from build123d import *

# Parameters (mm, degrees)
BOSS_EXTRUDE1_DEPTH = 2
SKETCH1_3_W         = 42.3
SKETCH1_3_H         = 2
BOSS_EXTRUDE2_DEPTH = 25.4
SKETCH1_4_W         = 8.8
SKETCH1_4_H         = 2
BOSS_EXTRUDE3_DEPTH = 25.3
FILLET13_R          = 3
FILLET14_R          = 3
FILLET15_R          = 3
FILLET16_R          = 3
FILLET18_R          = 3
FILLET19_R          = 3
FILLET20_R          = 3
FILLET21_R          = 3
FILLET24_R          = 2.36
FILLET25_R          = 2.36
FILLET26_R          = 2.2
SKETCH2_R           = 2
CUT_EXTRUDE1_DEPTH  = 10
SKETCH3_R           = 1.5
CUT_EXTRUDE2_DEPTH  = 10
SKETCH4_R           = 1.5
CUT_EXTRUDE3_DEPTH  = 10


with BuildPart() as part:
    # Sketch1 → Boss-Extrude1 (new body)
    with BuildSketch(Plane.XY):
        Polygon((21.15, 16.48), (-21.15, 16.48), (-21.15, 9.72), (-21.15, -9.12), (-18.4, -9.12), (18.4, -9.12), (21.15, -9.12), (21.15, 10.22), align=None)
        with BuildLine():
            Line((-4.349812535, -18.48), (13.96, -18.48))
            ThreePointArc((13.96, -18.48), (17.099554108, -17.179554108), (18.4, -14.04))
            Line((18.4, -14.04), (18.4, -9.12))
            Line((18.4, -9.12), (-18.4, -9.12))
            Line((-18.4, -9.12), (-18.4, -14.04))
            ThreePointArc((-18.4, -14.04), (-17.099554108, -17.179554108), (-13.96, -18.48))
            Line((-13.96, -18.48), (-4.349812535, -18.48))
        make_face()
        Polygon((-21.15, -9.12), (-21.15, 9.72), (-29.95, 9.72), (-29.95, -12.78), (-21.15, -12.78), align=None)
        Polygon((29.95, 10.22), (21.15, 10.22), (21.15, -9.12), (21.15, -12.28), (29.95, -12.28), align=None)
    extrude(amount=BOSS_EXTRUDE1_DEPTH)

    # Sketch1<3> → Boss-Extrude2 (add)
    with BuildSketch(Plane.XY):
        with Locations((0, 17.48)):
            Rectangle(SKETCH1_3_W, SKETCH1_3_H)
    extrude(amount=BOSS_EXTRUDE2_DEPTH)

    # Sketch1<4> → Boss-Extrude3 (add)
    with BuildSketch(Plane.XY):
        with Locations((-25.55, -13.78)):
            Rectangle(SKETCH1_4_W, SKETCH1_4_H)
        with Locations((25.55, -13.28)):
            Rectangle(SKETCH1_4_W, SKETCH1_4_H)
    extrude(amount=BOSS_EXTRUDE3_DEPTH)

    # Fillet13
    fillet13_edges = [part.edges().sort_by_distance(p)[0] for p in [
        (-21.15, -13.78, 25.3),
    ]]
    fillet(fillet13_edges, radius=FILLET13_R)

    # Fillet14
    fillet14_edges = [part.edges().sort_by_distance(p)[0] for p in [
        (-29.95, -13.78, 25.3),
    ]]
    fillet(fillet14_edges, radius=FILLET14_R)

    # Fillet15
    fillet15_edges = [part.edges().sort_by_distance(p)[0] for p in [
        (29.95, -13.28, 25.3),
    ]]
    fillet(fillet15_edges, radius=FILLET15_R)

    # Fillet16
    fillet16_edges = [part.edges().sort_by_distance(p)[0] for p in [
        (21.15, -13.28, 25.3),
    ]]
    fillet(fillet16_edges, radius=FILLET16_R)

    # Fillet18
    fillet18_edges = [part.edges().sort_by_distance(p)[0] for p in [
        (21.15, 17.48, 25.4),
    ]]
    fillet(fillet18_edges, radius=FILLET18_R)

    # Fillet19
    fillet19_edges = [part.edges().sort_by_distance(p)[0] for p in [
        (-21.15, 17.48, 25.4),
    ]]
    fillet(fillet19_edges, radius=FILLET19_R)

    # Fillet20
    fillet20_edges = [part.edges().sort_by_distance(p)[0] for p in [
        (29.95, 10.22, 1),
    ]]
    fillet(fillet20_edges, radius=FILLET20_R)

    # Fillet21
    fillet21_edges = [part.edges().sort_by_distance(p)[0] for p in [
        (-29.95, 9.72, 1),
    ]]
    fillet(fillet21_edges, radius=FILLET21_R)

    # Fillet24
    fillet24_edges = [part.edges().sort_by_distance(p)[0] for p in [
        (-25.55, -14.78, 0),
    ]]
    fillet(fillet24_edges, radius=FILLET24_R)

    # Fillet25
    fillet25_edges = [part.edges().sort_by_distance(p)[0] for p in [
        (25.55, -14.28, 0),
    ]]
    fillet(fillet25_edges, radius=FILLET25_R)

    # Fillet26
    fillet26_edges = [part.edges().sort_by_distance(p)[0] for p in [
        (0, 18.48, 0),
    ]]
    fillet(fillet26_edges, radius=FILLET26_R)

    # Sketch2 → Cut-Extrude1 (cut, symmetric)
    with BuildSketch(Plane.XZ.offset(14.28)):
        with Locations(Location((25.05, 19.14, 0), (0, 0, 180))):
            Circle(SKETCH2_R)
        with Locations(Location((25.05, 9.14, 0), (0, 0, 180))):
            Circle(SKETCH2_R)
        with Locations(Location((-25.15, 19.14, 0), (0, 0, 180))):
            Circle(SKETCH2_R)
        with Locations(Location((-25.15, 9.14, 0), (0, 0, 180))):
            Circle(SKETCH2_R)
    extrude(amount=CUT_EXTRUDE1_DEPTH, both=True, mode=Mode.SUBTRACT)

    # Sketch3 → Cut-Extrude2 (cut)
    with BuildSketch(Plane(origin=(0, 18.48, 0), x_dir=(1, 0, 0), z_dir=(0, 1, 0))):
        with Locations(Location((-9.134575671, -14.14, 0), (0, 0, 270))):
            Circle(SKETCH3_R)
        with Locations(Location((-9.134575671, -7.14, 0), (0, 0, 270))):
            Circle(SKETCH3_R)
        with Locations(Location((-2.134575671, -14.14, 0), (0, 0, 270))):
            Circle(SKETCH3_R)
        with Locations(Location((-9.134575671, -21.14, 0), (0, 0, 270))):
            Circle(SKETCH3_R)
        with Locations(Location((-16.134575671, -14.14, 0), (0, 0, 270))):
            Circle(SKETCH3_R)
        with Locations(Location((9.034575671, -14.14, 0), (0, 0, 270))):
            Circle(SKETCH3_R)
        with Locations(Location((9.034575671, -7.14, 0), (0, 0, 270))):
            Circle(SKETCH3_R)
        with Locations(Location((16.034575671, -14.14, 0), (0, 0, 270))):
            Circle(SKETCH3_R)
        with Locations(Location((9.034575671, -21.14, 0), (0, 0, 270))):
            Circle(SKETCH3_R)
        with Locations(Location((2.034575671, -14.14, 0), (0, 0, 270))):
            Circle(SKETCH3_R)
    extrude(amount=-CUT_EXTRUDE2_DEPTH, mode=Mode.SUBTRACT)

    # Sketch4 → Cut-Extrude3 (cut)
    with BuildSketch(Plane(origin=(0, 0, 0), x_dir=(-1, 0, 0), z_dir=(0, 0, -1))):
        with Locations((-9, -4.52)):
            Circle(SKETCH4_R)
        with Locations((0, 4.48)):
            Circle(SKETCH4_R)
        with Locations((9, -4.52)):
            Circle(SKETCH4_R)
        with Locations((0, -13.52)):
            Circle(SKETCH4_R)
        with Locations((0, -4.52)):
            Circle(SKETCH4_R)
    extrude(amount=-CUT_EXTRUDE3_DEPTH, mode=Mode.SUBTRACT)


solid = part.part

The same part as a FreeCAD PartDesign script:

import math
import FreeCAD as App
import Part
import Sketcher

V = App.Vector
Q = App.Units.Quantity


def edges_at(feature, points):
    """Names of the edges that pass closest to the given points."""
    edges = feature.Shape.Edges
    near = lambda p: min(range(len(edges)), key=lambda i: edges[i].distToShape(Part.Vertex(*p))[0])
    return sorted({f"Edge{near(p) + 1}" for p in points})

doc = App.newDocument("Part")
body = doc.addObject("PartDesign::Body", "Body")

# Sketch on XY plane
sketch1 = body.newObject("Sketcher::SketchObject", "Sketch")
sketch1.AttachmentSupport = (doc.getObject("XY_Plane"), [""])
sketch1.MapMode = "FlatFace"
sketch1.addGeometry(Part.LineSegment(V(21.15, 16.48, 0), V(-21.15, 16.48, 0)), False)
sketch1.addGeometry(Part.LineSegment(V(-21.15, 16.48, 0), V(-21.15, 9.72, 0)), False)
sketch1.addGeometry(Part.LineSegment(V(-21.15, 9.72, 0), V(-29.95, 9.72, 0)), False)
sketch1.addGeometry(Part.LineSegment(V(-29.95, 9.72, 0), V(-29.95, -12.78, 0)), False)
sketch1.addGeometry(Part.LineSegment(V(-29.95, -12.78, 0), V(-21.15, -12.78, 0)), False)
sketch1.addGeometry(Part.LineSegment(V(-21.15, -12.78, 0), V(-21.15, -9.12, 0)), False)
sketch1.addGeometry(Part.LineSegment(V(-21.15, -9.12, 0), V(-18.4, -9.12, 0)), False)
sketch1.addGeometry(Part.LineSegment(V(-18.4, -9.12, 0), V(-18.4, -14.04, 0)), False)
sketch1.addGeometry(Part.ArcOfCircle(Part.Circle(V(-13.96, -14.04, 0), V(0, 0, 1), 4.44), math.radians(-180), math.radians(-90)), False)
sketch1.addGeometry(Part.LineSegment(V(-13.96, -18.48, 0), V(13.96, -18.48, 0)), False)
sketch1.addGeometry(Part.ArcOfCircle(Part.Circle(V(13.96, -14.04, 0), V(0, 0, 1), 4.44), math.radians(-90), math.radians(0)), False)
sketch1.addGeometry(Part.LineSegment(V(18.4, -14.04, 0), V(18.4, -9.12, 0)), False)
sketch1.addGeometry(Part.LineSegment(V(18.4, -9.12, 0), V(21.15, -9.12, 0)), False)
sketch1.addGeometry(Part.LineSegment(V(21.15, -9.12, 0), V(21.15, -12.28, 0)), False)
sketch1.addGeometry(Part.LineSegment(V(21.15, -12.28, 0), V(29.95, -12.28, 0)), False)
sketch1.addGeometry(Part.LineSegment(V(29.95, -12.28, 0), V(29.95, 10.22, 0)), False)
sketch1.addGeometry(Part.LineSegment(V(29.95, 10.22, 0), V(21.15, 10.22, 0)), False)
sketch1.addGeometry(Part.LineSegment(V(21.15, 10.22, 0), V(21.15, 16.48, 0)), False)
sketch1.addConstraint(Sketcher.Constraint("Coincident", 0, 2, 1, 1))
sketch1.addConstraint(Sketcher.Constraint("Coincident", 1, 2, 2, 1))
sketch1.addConstraint(Sketcher.Constraint("Coincident", 2, 2, 3, 1))
sketch1.addConstraint(Sketcher.Constraint("Coincident", 3, 2, 4, 1))
sketch1.addConstraint(Sketcher.Constraint("Coincident", 4, 2, 5, 1))
sketch1.addConstraint(Sketcher.Constraint("Coincident", 5, 2, 6, 1))
sketch1.addConstraint(Sketcher.Constraint("Coincident", 6, 2, 7, 1))
sketch1.addConstraint(Sketcher.Constraint("Tangent", 7, 2, 8, 1))
sketch1.addConstraint(Sketcher.Constraint("Tangent", 8, 2, 9, 1))
sketch1.addConstraint(Sketcher.Constraint("Tangent", 9, 2, 10, 1))
sketch1.addConstraint(Sketcher.Constraint("Tangent", 10, 2, 11, 1))
sketch1.addConstraint(Sketcher.Constraint("Coincident", 11, 2, 12, 1))
sketch1.addConstraint(Sketcher.Constraint("Coincident", 12, 2, 13, 1))
sketch1.addConstraint(Sketcher.Constraint("Coincident", 13, 2, 14, 1))
sketch1.addConstraint(Sketcher.Constraint("Coincident", 14, 2, 15, 1))
sketch1.addConstraint(Sketcher.Constraint("Coincident", 15, 2, 16, 1))
sketch1.addConstraint(Sketcher.Constraint("Coincident", 16, 2, 17, 1))
sketch1.addConstraint(Sketcher.Constraint("Coincident", 17, 2, 0, 1))
sketch1.addConstraint(Sketcher.Constraint("Horizontal", 0))
sketch1.addConstraint(Sketcher.Constraint("Vertical", 1))
sketch1.addConstraint(Sketcher.Constraint("Horizontal", 2))
sketch1.addConstraint(Sketcher.Constraint("Vertical", 3))
sketch1.addConstraint(Sketcher.Constraint("Horizontal", 4))
sketch1.addConstraint(Sketcher.Constraint("Vertical", 5))
sketch1.addConstraint(Sketcher.Constraint("Horizontal", 6))
sketch1.addConstraint(Sketcher.Constraint("Vertical", 7))
sketch1.addConstraint(Sketcher.Constraint("Horizontal", 9))
sketch1.addConstraint(Sketcher.Constraint("Vertical", 11))
sketch1.addConstraint(Sketcher.Constraint("Horizontal", 12))
sketch1.addConstraint(Sketcher.Constraint("Vertical", 13))
sketch1.addConstraint(Sketcher.Constraint("Horizontal", 14))
sketch1.addConstraint(Sketcher.Constraint("Vertical", 15))
sketch1.addConstraint(Sketcher.Constraint("Horizontal", 16))
sketch1.addConstraint(Sketcher.Constraint("Vertical", 17))
sketch1.addConstraint(Sketcher.Constraint("Equal", 8, 10))
sketch1.addConstraint(Sketcher.Constraint("Symmetric", 6, 2, 11, 2, -2))
sketch1.addConstraint(Sketcher.Constraint("Vertical", 1, 2, 4, 2))
sketch1.addConstraint(Sketcher.Constraint("Vertical", 13, 2, 16, 2))
sketch1.addConstraint(Sketcher.Constraint("Equal", 6, 12))
sketch1.addConstraint(Sketcher.Constraint("Equal", 4, 14))
sketch1.addConstraint(Sketcher.Constraint("Equal", 3, 15))
sketch1.addConstraint(Sketcher.Constraint("Radius", 8, Q("4.44 mm")))
sketch1.addConstraint(Sketcher.Constraint("DistanceX", 0, 2, 0, 1, Q("42.3 mm")))
sketch1.addConstraint(Sketcher.Constraint("DistanceX", 2, 2, 2, 1, Q("8.8 mm")))
sketch1.addConstraint(Sketcher.Constraint("DistanceY", 3, 2, 3, 1, Q("22.5 mm")))
sketch1.addConstraint(Sketcher.Constraint("DistanceX", 6, 1, 6, 2, Q("2.75 mm")))
sketch1.addConstraint(Sketcher.Constraint("DistanceY", 1, 2, 1, 1, Q("6.76 mm")))
sketch1.addConstraint(Sketcher.Constraint("DistanceY", 5, 1, 5, 2, Q("3.66 mm")))
sketch1.addConstraint(Sketcher.Constraint("DistanceY", 7, 2, 7, 1, Q("4.92 mm")))
sketch1.addConstraint(Sketcher.Constraint("DistanceY", 13, 2, 13, 1, Q("3.16 mm")))
sketch1.addConstraint(Sketcher.Constraint("DistanceY", 8, 3, -1, 1, Q("14.04 mm")))
pad1 = body.newObject("PartDesign::Pad", "Pad")
pad1.Profile = sketch1
pad1.Length = 2

# Sketch on XY plane
sketch2 = body.newObject("Sketcher::SketchObject", "Sketch001")
sketch2.AttachmentSupport = (doc.getObject("XY_Plane"), [""])
sketch2.MapMode = "FlatFace"
sketch2.addGeometry(Part.LineSegment(V(-21.15, 18.48, 0), V(-21.15, 16.48, 0)), False)
sketch2.addGeometry(Part.LineSegment(V(-21.15, 16.48, 0), V(21.15, 16.48, 0)), False)
sketch2.addGeometry(Part.LineSegment(V(21.15, 16.48, 0), V(21.15, 18.48, 0)), False)
sketch2.addGeometry(Part.LineSegment(V(21.15, 18.48, 0), V(-21.15, 18.48, 0)), False)
sketch2.addConstraint(Sketcher.Constraint("Coincident", 0, 2, 1, 1))
sketch2.addConstraint(Sketcher.Constraint("Coincident", 1, 2, 2, 1))
sketch2.addConstraint(Sketcher.Constraint("Coincident", 2, 2, 3, 1))
sketch2.addConstraint(Sketcher.Constraint("Coincident", 3, 2, 0, 1))
sketch2.addConstraint(Sketcher.Constraint("Vertical", 0))
sketch2.addConstraint(Sketcher.Constraint("Horizontal", 1))
sketch2.addConstraint(Sketcher.Constraint("Vertical", 2))
sketch2.addConstraint(Sketcher.Constraint("Horizontal", 3))
sketch2.addConstraint(Sketcher.Constraint("DistanceY", 0, 2, 0, 1, Q("2 mm")))
sketch2.addConstraint(Sketcher.Constraint("DistanceX", 1, 1, 1, 2, Q("42.3 mm")))
sketch2.addConstraint(Sketcher.Constraint("DistanceX", 0, 2, -1, 1, Q("21.15 mm")))
sketch2.addConstraint(Sketcher.Constraint("DistanceY", -1, 1, 0, 2, Q("16.48 mm")))
pad2 = body.newObject("PartDesign::Pad", "Pad001")
pad2.Profile = sketch2
pad2.Length = 25.4

# Sketch on XY plane
sketch3 = body.newObject("Sketcher::SketchObject", "Sketch002")
sketch3.AttachmentSupport = (doc.getObject("XY_Plane"), [""])
sketch3.MapMode = "FlatFace"
sketch3.addGeometry(Part.LineSegment(V(-29.95, -12.78, 0), V(-29.95, -14.78, 0)), False)
sketch3.addGeometry(Part.LineSegment(V(-29.95, -14.78, 0), V(-21.15, -14.78, 0)), False)
sketch3.addGeometry(Part.LineSegment(V(-21.15, -14.78, 0), V(-21.15, -12.78, 0)), False)
sketch3.addGeometry(Part.LineSegment(V(-21.15, -12.78, 0), V(-29.95, -12.78, 0)), False)
sketch3.addGeometry(Part.LineSegment(V(21.15, -12.28, 0), V(21.15, -14.28, 0)), False)
sketch3.addGeometry(Part.LineSegment(V(21.15, -14.28, 0), V(29.95, -14.28, 0)), False)
sketch3.addGeometry(Part.LineSegment(V(29.95, -14.28, 0), V(29.95, -12.28, 0)), False)
sketch3.addGeometry(Part.LineSegment(V(29.95, -12.28, 0), V(21.15, -12.28, 0)), False)
sketch3.addConstraint(Sketcher.Constraint("Coincident", 0, 2, 1, 1))
sketch3.addConstraint(Sketcher.Constraint("Coincident", 1, 2, 2, 1))
sketch3.addConstraint(Sketcher.Constraint("Coincident", 2, 2, 3, 1))
sketch3.addConstraint(Sketcher.Constraint("Coincident", 3, 2, 0, 1))
sketch3.addConstraint(Sketcher.Constraint("Coincident", 4, 2, 5, 1))
sketch3.addConstraint(Sketcher.Constraint("Coincident", 5, 2, 6, 1))
sketch3.addConstraint(Sketcher.Constraint("Coincident", 6, 2, 7, 1))
sketch3.addConstraint(Sketcher.Constraint("Coincident", 7, 2, 4, 1))
sketch3.addConstraint(Sketcher.Constraint("Vertical", 0))
sketch3.addConstraint(Sketcher.Constraint("Horizontal", 1))
sketch3.addConstraint(Sketcher.Constraint("Vertical", 2))
sketch3.addConstraint(Sketcher.Constraint("Horizontal", 3))
sketch3.addConstraint(Sketcher.Constraint("Vertical", 4))
sketch3.addConstraint(Sketcher.Constraint("Horizontal", 5))
sketch3.addConstraint(Sketcher.Constraint("Vertical", 6))
sketch3.addConstraint(Sketcher.Constraint("Horizontal", 7))
sketch3.addConstraint(Sketcher.Constraint("Equal", 3, 5))
sketch3.addConstraint(Sketcher.Constraint("Equal", 2, 4))
sketch3.addConstraint(Sketcher.Constraint("DistanceY", 0, 2, 0, 1, Q("2 mm")))
sketch3.addConstraint(Sketcher.Constraint("DistanceX", 1, 1, 1, 2, Q("8.8 mm")))
sketch3.addConstraint(Sketcher.Constraint("DistanceX", 1, 2, 4, 2, Q("42.3 mm")))
sketch3.addConstraint(Sketcher.Constraint("DistanceY", 1, 2, 4, 2, Q("0.5 mm")))
sketch3.addConstraint(Sketcher.Constraint("DistanceX", 0, 2, -1, 1, Q("29.95 mm")))
sketch3.addConstraint(Sketcher.Constraint("DistanceY", 0, 2, -1, 1, Q("14.78 mm")))
pad3 = body.newObject("PartDesign::Pad", "Pad002")
pad3.Profile = sketch3
pad3.Length = 25.3
doc.recompute()

fillet = body.newObject("PartDesign::Fillet", "Fillet")
fillet.Base = (pad3, edges_at(pad3, [(-21.15, -13.78, 25.3)]))
fillet.Radius = 3
doc.recompute()

fillet2 = body.newObject("PartDesign::Fillet", "Fillet001")
fillet2.Base = (fillet, edges_at(fillet, [(-29.95, -13.78, 25.3)]))
fillet2.Radius = 3
doc.recompute()

fillet3 = body.newObject("PartDesign::Fillet", "Fillet002")
fillet3.Base = (fillet2, edges_at(fillet2, [(29.95, -13.28, 25.3)]))
fillet3.Radius = 3
doc.recompute()

fillet4 = body.newObject("PartDesign::Fillet", "Fillet003")
fillet4.Base = (fillet3, edges_at(fillet3, [(21.15, -13.28, 25.3)]))
fillet4.Radius = 3
doc.recompute()

fillet5 = body.newObject("PartDesign::Fillet", "Fillet004")
fillet5.Base = (fillet4, edges_at(fillet4, [(21.15, 17.48, 25.4)]))
fillet5.Radius = 3
doc.recompute()

fillet6 = body.newObject("PartDesign::Fillet", "Fillet005")
fillet6.Base = (fillet5, edges_at(fillet5, [(-21.15, 17.48, 25.4)]))
fillet6.Radius = 3
doc.recompute()

fillet7 = body.newObject("PartDesign::Fillet", "Fillet006")
fillet7.Base = (fillet6, edges_at(fillet6, [(29.95, 10.22, 1)]))
fillet7.Radius = 3
doc.recompute()

fillet8 = body.newObject("PartDesign::Fillet", "Fillet007")
fillet8.Base = (fillet7, edges_at(fillet7, [(-29.95, 9.72, 1)]))
fillet8.Radius = 3
doc.recompute()

fillet9 = body.newObject("PartDesign::Fillet", "Fillet008")
fillet9.Base = (fillet8, edges_at(fillet8, [(-25.55, -14.78, 0)]))
fillet9.Radius = 2.36
doc.recompute()

fillet10 = body.newObject("PartDesign::Fillet", "Fillet009")
fillet10.Base = (fillet9, edges_at(fillet9, [(25.55, -14.28, 0)]))
fillet10.Radius = 2.36
doc.recompute()

fillet11 = body.newObject("PartDesign::Fillet", "Fillet010")
fillet11.Base = (fillet10, edges_at(fillet10, [(0, 18.48, 0)]))
fillet11.Radius = 2.2

# Sketch on XZ plane
sketch4 = body.newObject("Sketcher::SketchObject", "Sketch003")
sketch4.AttachmentSupport = (doc.getObject("XZ_Plane"), [""])
sketch4.MapMode = "FlatFace"
sketch4.AttachmentOffset = App.Placement(V(0, 0, 14.28), App.Rotation())
sketch4.addGeometry(Part.Circle(V(25.05, 19.14, 0), V(0, 0, 1), 2), False)
sketch4.addGeometry(Part.Circle(V(25.05, 9.14, 0), V(0, 0, 1), 2), False)
sketch4.addGeometry(Part.Circle(V(-25.15, 19.14, 0), V(0, 0, 1), 2), False)
sketch4.addGeometry(Part.Circle(V(-25.15, 9.14, 0), V(0, 0, 1), 2), False)
sketch4.addConstraint(Sketcher.Constraint("Equal", 0, 1))
sketch4.addConstraint(Sketcher.Constraint("Equal", 1, 2))
sketch4.addConstraint(Sketcher.Constraint("Equal", 2, 3))
sketch4.addConstraint(Sketcher.Constraint("Horizontal", 0, 3, 2, 3))
sketch4.addConstraint(Sketcher.Constraint("Horizontal", 1, 3, 3, 3))
sketch4.addConstraint(Sketcher.Constraint("Vertical", 0, 3, 1, 3))
sketch4.addConstraint(Sketcher.Constraint("Vertical", 2, 3, 3, 3))
sketch4.addConstraint(Sketcher.Constraint("Diameter", 0, Q("4 mm")))
sketch4.addConstraint(Sketcher.Constraint("DistanceY", 1, 3, 0, 3, Q("10 mm")))
sketch4.addConstraint(Sketcher.Constraint("DistanceX", 2, 3, 0, 3, Q("50.2 mm")))
sketch4.addConstraint(Sketcher.Constraint("DistanceX", -1, 1, 0, 3, Q("25.05 mm")))
sketch4.addConstraint(Sketcher.Constraint("DistanceY", -1, 1, 0, 3, Q("19.14 mm")))
pocket1 = body.newObject("PartDesign::Pocket", "Pocket")
pocket1.Profile = sketch4
pocket1.Length = 20
pocket1.Midplane = True

# Sketch on XZ plane
sketch5 = body.newObject("Sketcher::SketchObject", "Sketch004")
sketch5.AttachmentSupport = (doc.getObject("XZ_Plane"), [""])
sketch5.MapMode = "FlatFace"
sketch5.AttachmentOffset = App.Placement(V(0, 0, -18.48), App.Rotation())
sketch5.addGeometry(Part.Circle(V(-9.134576, 14.14, 0), V(0, 0, 1), 1.5), False)
sketch5.addGeometry(Part.Circle(V(-9.134576, 7.14, 0), V(0, 0, 1), 1.5), False)
sketch5.addGeometry(Part.Circle(V(-2.134576, 14.14, 0), V(0, 0, 1), 1.5), False)
sketch5.addGeometry(Part.Circle(V(-9.134576, 21.14, 0), V(0, 0, 1), 1.5), False)
sketch5.addGeometry(Part.Circle(V(-16.134576, 14.14, 0), V(0, 0, 1), 1.5), False)
sketch5.addGeometry(Part.Circle(V(9.034576, 14.14, 0), V(0, 0, 1), 1.5), False)
sketch5.addGeometry(Part.Circle(V(9.034576, 7.14, 0), V(0, 0, 1), 1.5), False)
sketch5.addGeometry(Part.Circle(V(16.034576, 14.14, 0), V(0, 0, 1), 1.5), False)
sketch5.addGeometry(Part.Circle(V(9.034576, 21.14, 0), V(0, 0, 1), 1.5), False)
sketch5.addGeometry(Part.Circle(V(2.034576, 14.14, 0), V(0, 0, 1), 1.5), False)
sketch5.addConstraint(Sketcher.Constraint("Equal", 0, 1))
sketch5.addConstraint(Sketcher.Constraint("Equal", 1, 2))
sketch5.addConstraint(Sketcher.Constraint("Equal", 2, 3))
sketch5.addConstraint(Sketcher.Constraint("Equal", 3, 4))
sketch5.addConstraint(Sketcher.Constraint("Equal", 4, 5))
sketch5.addConstraint(Sketcher.Constraint("Equal", 5, 6))
sketch5.addConstraint(Sketcher.Constraint("Equal", 6, 7))
sketch5.addConstraint(Sketcher.Constraint("Equal", 7, 8))
sketch5.addConstraint(Sketcher.Constraint("Equal", 8, 9))
sketch5.addConstraint(Sketcher.Constraint("Horizontal", 0, 3, 2, 3))
sketch5.addConstraint(Sketcher.Constraint("Horizontal", 2, 3, 4, 3))
sketch5.addConstraint(Sketcher.Constraint("Horizontal", 4, 3, 5, 3))
sketch5.addConstraint(Sketcher.Constraint("Horizontal", 1, 3, 6, 3))
sketch5.addConstraint(Sketcher.Constraint("Horizontal", 5, 3, 7, 3))
sketch5.addConstraint(Sketcher.Constraint("Horizontal", 3, 3, 8, 3))
sketch5.addConstraint(Sketcher.Constraint("Horizontal", 7, 3, 9, 3))
sketch5.addConstraint(Sketcher.Constraint("Vertical", 0, 3, 1, 3))
sketch5.addConstraint(Sketcher.Constraint("Vertical", 1, 3, 3, 3))
sketch5.addConstraint(Sketcher.Constraint("Vertical", 5, 3, 6, 3))
sketch5.addConstraint(Sketcher.Constraint("Vertical", 6, 3, 8, 3))
sketch5.addConstraint(Sketcher.Constraint("Diameter", 0, Q("3 mm")))
sketch5.addConstraint(Sketcher.Constraint("DistanceY", 1, 3, 0, 3, Q("7 mm")))
sketch5.addConstraint(Sketcher.Constraint("DistanceX", 0, 3, 2, 3, Q("7 mm")))
sketch5.addConstraint(Sketcher.Constraint("DistanceY", 0, 3, 3, 3, Q("7 mm")))
sketch5.addConstraint(Sketcher.Constraint("DistanceX", 4, 3, 0, 3, Q("7 mm")))
sketch5.addConstraint(Sketcher.Constraint("DistanceX", 5, 3, 7, 3, Q("7 mm")))
sketch5.addConstraint(Sketcher.Constraint("DistanceX", 9, 3, 5, 3, Q("7 mm")))
sketch5.addConstraint(Sketcher.Constraint("DistanceY", -1, 1, 0, 3, Q("14.14 mm")))
sketch5.addConstraint(Sketcher.Constraint("DistanceX", 2, 3, 5, 3, Q("11.169151 mm")))
sketch5.addConstraint(Sketcher.Constraint("DistanceX", 0, 3, -1, 1, Q("9.134576 mm")))
pocket2 = body.newObject("PartDesign::Pocket", "Pocket001")
pocket2.Profile = sketch5
pocket2.Length = 10
pocket2.Reversed = True

# Sketch on XY plane
sketch6 = body.newObject("Sketcher::SketchObject", "Sketch005")
sketch6.AttachmentSupport = (doc.getObject("XY_Plane"), [""])
sketch6.MapMode = "FlatFace"
sketch6.addGeometry(Part.Circle(V(9, -4.52, 0), V(0, 0, 1), 1.5), False)
sketch6.addGeometry(Part.Circle(V(0, 4.48, 0), V(0, 0, 1), 1.5), False)
sketch6.addGeometry(Part.Circle(V(-9, -4.52, 0), V(0, 0, 1), 1.5), False)
sketch6.addGeometry(Part.Circle(V(0, -13.52, 0), V(0, 0, 1), 1.5), False)
sketch6.addGeometry(Part.Circle(V(0, -4.52, 0), V(0, 0, 1), 1.5), False)
sketch6.addConstraint(Sketcher.Constraint("Equal", 0, 1))
sketch6.addConstraint(Sketcher.Constraint("Equal", 1, 2))
sketch6.addConstraint(Sketcher.Constraint("Equal", 2, 3))
sketch6.addConstraint(Sketcher.Constraint("Equal", 3, 4))
sketch6.addConstraint(Sketcher.Constraint("Symmetric", 0, 3, 2, 3, -2))
sketch6.addConstraint(Sketcher.Constraint("PointOnObject", 1, 3, -2))
sketch6.addConstraint(Sketcher.Constraint("PointOnObject", 3, 3, -2))
sketch6.addConstraint(Sketcher.Constraint("PointOnObject", 4, 3, -2))
sketch6.addConstraint(Sketcher.Constraint("Horizontal", 2, 3, 4, 3))
sketch6.addConstraint(Sketcher.Constraint("Diameter", 0, Q("3 mm")))
sketch6.addConstraint(Sketcher.Constraint("DistanceX", -1, 1, 0, 3, Q("9 mm")))
sketch6.addConstraint(Sketcher.Constraint("DistanceY", 0, 3, 1, 3, Q("9 mm")))
sketch6.addConstraint(Sketcher.Constraint("DistanceY", 3, 3, 0, 3, Q("9 mm")))
sketch6.addConstraint(Sketcher.Constraint("DistanceY", 0, 3, -1, 1, Q("4.52 mm")))
pocket3 = body.newObject("PartDesign::Pocket", "Pocket002")
pocket3.Profile = sketch6
pocket3.Length = 10
pocket3.Reversed = True

doc.recompute()
